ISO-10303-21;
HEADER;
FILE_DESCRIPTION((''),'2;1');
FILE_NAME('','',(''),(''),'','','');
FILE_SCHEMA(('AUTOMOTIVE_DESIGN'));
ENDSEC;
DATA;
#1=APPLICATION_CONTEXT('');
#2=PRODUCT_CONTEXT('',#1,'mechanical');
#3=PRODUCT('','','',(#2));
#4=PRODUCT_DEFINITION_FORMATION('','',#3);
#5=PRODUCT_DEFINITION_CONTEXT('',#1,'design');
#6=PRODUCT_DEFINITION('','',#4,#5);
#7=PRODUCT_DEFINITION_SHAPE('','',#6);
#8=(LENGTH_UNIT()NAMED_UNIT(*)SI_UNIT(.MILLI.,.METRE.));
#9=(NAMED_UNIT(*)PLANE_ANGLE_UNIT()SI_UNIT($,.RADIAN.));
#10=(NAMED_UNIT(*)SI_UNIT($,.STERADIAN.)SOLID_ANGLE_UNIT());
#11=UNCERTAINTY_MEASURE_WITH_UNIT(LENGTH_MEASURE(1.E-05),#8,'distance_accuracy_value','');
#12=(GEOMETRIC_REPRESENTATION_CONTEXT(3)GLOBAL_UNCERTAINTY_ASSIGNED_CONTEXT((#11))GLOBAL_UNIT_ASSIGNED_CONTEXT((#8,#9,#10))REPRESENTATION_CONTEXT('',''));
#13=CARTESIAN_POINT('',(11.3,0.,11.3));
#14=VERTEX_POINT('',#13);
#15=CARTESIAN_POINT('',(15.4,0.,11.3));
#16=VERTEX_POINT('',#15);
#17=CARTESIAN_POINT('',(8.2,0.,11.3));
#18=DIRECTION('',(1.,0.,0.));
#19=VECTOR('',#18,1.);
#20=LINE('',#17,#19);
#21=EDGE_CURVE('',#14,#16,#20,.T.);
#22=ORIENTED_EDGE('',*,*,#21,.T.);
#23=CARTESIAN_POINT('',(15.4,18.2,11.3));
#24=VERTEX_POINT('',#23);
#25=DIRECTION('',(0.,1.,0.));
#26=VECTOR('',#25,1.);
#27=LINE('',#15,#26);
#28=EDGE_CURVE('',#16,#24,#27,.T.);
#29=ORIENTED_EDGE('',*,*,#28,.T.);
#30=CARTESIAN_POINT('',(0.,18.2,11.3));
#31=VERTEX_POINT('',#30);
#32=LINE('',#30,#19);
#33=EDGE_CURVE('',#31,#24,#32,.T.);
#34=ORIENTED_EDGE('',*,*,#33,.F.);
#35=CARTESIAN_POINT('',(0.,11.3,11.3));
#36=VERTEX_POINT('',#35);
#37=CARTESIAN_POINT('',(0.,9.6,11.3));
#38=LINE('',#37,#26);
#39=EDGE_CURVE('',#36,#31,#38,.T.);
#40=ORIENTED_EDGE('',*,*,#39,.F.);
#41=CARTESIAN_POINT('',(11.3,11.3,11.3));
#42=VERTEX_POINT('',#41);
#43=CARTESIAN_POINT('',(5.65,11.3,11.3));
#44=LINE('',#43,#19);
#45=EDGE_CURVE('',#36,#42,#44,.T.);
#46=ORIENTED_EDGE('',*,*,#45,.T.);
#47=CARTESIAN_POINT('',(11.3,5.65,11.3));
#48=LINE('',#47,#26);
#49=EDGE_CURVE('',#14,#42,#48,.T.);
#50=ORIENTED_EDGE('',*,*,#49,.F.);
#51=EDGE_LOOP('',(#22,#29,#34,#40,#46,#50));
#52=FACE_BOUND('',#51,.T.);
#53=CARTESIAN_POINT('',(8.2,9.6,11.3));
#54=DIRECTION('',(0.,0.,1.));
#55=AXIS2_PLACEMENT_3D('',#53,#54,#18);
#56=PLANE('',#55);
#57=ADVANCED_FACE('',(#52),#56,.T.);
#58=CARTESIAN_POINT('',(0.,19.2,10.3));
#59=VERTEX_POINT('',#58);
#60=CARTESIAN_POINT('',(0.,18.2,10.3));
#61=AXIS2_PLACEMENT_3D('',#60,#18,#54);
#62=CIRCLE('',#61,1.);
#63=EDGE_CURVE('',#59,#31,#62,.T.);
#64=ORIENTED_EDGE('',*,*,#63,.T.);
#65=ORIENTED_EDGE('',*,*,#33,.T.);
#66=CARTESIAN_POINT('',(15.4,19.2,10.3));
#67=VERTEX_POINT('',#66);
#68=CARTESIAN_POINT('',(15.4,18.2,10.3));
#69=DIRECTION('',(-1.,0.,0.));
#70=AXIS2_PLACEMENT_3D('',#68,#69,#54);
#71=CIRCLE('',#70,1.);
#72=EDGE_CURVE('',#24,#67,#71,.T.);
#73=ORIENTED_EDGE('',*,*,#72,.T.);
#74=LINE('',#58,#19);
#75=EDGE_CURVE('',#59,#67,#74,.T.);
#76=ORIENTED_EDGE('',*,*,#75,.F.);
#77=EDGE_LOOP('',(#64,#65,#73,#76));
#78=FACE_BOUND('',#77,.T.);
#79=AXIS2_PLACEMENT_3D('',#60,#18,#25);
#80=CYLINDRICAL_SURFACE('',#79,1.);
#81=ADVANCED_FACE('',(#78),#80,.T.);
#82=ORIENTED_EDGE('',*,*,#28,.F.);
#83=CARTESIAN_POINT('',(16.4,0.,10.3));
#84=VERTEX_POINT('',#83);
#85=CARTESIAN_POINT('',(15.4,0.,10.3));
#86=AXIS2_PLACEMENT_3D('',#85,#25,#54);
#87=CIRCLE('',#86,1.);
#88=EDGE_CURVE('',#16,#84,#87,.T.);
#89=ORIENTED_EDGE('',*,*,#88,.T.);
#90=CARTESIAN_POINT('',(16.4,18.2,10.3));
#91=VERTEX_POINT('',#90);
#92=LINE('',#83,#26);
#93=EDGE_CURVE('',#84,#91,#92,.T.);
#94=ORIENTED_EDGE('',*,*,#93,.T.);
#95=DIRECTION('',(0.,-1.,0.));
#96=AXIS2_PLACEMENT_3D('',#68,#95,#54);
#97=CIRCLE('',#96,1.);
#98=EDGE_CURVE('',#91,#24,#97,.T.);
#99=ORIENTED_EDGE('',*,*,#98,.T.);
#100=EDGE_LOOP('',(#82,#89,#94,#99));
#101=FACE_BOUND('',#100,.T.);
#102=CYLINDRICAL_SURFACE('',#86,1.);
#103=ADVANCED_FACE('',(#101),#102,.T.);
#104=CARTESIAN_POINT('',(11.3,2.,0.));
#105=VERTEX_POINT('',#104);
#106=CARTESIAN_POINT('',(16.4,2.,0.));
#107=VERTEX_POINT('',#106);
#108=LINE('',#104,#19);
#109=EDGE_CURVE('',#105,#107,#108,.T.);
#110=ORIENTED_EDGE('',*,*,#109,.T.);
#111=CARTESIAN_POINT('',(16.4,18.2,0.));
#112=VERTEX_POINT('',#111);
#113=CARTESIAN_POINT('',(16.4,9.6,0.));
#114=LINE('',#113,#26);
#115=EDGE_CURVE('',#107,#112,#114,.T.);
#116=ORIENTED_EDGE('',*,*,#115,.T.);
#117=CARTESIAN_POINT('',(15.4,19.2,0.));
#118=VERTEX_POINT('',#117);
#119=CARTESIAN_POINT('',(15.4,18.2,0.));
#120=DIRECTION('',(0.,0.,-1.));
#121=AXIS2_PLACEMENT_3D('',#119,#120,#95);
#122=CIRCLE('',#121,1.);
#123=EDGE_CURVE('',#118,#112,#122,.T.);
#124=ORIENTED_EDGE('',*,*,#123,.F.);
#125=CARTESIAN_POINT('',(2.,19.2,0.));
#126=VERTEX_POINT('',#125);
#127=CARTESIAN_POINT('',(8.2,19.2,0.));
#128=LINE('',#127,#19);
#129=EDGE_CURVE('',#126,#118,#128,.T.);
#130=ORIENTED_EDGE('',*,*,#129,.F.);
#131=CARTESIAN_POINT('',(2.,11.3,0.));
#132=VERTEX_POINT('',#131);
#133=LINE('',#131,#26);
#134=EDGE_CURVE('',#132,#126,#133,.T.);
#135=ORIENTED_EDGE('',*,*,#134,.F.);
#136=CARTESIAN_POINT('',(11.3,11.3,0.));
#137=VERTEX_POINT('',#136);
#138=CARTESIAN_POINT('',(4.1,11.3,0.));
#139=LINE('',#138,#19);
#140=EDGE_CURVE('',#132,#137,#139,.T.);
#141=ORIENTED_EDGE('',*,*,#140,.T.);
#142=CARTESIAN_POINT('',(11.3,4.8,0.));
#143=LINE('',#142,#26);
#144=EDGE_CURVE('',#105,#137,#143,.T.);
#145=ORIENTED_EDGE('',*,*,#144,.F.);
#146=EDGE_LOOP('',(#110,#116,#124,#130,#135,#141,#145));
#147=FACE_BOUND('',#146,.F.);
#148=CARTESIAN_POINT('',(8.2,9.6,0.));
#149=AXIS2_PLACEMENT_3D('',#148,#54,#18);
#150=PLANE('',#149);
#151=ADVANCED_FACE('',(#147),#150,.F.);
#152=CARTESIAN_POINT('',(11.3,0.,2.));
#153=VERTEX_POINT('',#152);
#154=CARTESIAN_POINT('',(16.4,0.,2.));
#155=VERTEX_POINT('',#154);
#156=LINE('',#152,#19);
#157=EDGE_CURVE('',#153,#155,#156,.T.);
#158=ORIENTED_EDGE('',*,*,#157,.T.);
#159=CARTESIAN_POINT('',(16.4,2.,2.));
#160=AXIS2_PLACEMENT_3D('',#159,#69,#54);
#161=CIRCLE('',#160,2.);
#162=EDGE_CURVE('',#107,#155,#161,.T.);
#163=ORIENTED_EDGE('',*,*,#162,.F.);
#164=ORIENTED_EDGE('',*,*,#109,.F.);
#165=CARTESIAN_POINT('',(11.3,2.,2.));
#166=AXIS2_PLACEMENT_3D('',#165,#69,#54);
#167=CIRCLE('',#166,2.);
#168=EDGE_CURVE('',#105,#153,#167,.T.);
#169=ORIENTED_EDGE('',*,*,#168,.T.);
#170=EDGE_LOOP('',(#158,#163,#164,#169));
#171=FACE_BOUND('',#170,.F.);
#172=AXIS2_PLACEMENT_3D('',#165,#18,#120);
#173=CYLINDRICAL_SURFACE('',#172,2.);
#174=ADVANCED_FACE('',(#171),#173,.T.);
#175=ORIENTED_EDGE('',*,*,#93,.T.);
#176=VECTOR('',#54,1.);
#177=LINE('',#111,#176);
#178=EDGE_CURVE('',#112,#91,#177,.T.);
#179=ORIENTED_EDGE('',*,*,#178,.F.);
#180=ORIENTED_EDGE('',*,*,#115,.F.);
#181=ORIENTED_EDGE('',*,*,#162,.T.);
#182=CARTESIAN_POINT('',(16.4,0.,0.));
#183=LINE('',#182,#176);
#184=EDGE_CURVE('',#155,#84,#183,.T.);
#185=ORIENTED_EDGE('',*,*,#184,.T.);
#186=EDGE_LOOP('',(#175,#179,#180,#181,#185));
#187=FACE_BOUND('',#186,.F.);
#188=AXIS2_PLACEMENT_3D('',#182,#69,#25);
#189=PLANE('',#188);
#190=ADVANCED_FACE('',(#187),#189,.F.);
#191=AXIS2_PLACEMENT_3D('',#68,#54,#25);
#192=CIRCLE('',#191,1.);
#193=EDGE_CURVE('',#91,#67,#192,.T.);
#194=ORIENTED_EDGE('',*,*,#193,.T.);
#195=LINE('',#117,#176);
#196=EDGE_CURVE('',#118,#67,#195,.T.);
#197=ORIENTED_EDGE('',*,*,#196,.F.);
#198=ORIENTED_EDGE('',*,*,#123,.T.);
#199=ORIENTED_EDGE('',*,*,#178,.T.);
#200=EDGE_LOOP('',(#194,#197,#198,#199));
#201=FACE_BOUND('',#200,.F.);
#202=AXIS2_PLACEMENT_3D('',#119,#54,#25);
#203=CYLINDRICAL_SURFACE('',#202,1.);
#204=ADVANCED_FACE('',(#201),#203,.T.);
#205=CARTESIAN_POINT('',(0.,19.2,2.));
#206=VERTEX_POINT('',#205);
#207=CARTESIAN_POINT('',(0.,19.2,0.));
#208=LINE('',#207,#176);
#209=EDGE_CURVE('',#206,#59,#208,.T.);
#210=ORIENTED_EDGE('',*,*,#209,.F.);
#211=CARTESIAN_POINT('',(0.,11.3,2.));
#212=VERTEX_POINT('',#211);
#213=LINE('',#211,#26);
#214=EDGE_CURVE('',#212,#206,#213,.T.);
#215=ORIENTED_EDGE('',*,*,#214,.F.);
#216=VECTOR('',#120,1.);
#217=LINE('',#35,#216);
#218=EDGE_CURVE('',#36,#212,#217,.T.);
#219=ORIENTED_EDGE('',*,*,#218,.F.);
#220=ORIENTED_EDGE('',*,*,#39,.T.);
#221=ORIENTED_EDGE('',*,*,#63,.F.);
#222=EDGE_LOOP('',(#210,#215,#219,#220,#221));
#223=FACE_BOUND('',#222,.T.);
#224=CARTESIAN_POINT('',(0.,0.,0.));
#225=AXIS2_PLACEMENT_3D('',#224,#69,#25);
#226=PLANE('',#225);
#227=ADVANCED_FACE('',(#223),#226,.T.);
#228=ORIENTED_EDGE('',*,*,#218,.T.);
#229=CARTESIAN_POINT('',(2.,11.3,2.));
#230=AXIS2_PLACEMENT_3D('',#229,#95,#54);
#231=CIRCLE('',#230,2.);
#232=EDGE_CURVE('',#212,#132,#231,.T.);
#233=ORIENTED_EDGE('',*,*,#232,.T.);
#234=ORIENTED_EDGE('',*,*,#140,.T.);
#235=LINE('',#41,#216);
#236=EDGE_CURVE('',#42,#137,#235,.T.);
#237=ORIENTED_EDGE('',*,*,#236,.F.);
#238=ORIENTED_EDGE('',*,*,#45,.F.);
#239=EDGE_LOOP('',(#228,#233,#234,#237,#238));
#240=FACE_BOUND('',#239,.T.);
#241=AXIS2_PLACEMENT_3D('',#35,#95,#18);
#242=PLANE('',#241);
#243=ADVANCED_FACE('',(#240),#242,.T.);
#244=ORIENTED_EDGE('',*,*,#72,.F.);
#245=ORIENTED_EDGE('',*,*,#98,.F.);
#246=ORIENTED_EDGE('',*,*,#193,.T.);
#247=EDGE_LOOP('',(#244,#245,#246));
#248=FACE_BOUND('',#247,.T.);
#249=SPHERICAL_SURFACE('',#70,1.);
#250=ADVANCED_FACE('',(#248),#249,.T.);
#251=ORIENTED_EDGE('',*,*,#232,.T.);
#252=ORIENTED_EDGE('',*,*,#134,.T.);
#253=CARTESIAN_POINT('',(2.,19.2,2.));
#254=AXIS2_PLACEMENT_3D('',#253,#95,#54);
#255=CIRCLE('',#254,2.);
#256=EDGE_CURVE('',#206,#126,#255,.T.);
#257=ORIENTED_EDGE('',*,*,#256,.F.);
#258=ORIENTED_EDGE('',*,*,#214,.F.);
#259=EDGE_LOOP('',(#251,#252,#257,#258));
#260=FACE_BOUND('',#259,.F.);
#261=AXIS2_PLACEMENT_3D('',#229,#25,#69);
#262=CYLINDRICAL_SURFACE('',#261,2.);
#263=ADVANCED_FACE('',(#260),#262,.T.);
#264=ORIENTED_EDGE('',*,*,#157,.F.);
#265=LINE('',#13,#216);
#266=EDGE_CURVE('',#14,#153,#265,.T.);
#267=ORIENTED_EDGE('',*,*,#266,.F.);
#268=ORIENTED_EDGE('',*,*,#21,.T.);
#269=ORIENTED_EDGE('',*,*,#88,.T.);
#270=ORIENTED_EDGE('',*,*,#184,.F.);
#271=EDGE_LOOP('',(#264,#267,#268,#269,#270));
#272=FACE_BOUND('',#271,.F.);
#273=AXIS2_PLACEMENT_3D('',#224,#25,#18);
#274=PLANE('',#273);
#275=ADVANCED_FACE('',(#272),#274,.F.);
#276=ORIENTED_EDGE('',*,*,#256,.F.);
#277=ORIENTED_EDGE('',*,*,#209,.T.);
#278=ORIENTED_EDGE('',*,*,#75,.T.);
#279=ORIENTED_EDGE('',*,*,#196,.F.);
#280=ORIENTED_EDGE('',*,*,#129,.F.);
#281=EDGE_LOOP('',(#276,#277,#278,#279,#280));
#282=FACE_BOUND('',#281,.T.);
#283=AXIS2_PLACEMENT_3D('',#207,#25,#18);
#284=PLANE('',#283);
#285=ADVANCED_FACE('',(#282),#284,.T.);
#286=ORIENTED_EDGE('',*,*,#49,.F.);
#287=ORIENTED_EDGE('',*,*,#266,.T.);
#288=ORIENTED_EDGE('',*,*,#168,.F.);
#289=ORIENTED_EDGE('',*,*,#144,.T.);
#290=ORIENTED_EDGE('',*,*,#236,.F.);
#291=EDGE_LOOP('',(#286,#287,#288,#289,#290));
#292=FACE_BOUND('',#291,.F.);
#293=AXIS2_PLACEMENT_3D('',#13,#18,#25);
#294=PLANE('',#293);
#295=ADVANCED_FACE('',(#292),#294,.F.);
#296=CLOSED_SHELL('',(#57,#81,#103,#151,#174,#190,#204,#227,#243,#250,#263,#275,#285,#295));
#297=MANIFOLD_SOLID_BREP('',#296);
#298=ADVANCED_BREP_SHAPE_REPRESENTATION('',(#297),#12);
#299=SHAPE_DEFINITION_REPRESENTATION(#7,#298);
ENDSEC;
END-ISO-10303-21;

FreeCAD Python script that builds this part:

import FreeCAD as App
import Part
import Sketcher
from FreeCAD import Vector
Q = App.Units.Quantity


def edges_at(feature, points):
    """Names of the edges that pass closest to the given points."""
    edges = feature.Shape.Edges
    near = lambda p: min(range(len(edges)), key=lambda i: edges[i].distToShape(Part.Vertex(*p))[0])
    return sorted({f"Edge{near(p) + 1}" for p in points})

doc = App.newDocument("Part")
params = doc.addObject("Spreadsheet::Sheet", "Params")
for row, (alias, value) in enumerate([
    ("sketch1_width", "16.4 mm"),
    ("sketch1_height", "19.2 mm"),
    ("pad1_length", "11.3 mm"),
    ("sketch2_width", "11.3 mm"),
    ("pocket1_length", "25 mm"),
    ("fillet_radius", "2 mm"),
    ("fillet2_radius", "1 mm"),
], start=1):
    params.set(f"A{row}", alias)
    params.set(f"B{row}", "=" + value)
    params.setAlias(f"B{row}", alias)

body = doc.addObject("PartDesign::Body", "Body")

sketch1 = body.newObject("Sketcher::SketchObject", "Sketch")
sketch1.AttachmentSupport = (doc.getObject("XY_Plane"), [""])
sketch1.MapMode = "FlatFace"
sketch1.addGeometry(Part.LineSegment(Vector(0, 19, 0), Vector(0, 0, 0)), False)
sketch1.addGeometry(Part.LineSegment(Vector(0, 0, 0), Vector(16, 0, 0)), False)
sketch1.addGeometry(Part.LineSegment(Vector(16, 0, 0), Vector(16, 19, 0)), False)
sketch1.addGeometry(Part.LineSegment(Vector(16, 19, 0), Vector(0, 19, 0)), False)
sketch1.addConstraint(Sketcher.Constraint("Coincident", 0, 2, 1, 1))
sketch1.addConstraint(Sketcher.Constraint("Coincident", 1, 2, 2, 1))
sketch1.addConstraint(Sketcher.Constraint("Coincident", 2, 2, 3, 1))
sketch1.addConstraint(Sketcher.Constraint("Coincident", 3, 2, 0, 1))
sketch1.addConstraint(Sketcher.Constraint("Vertical", 0))
sketch1.addConstraint(Sketcher.Constraint("Horizontal", 1))
sketch1.addConstraint(Sketcher.Constraint("Vertical", 2))
sketch1.addConstraint(Sketcher.Constraint("Horizontal", 3))
sketch1.addConstraint(Sketcher.Constraint("Coincident", 0, 2, -1, 1))
sketch1.addConstraint(Sketcher.Constraint("DistanceX", 1, 1, 1, 2, Q("16.4 mm")))
sketch1.addConstraint(Sketcher.Constraint("DistanceY", 0, 2, 0, 1, Q("19.2 mm")))
sketch1.setExpression("Constraints[9]", "Params.sketch1_width")
sketch1.setExpression("Constraints[10]", "Params.sketch1_height")
pad1 = body.newObject("PartDesign::Pad", "Pad")
pad1.Profile = sketch1
pad1.setExpression("Length", "Params.pad1_length")

sketch2 = body.newObject("Sketcher::SketchObject", "Sketch001")
sketch2.AttachmentSupport = (doc.getObject("XY_Plane"), [""])
sketch2.MapMode = "FlatFace"
sketch2.AttachmentOffset = App.Placement(Vector(0, 0, 11.3), App.Rotation())
sketch2.addGeometry(Part.LineSegment(Vector(0, 11, 0), Vector(0, 0, 0)), False)
sketch2.addGeometry(Part.LineSegment(Vector(0, 0, 0), Vector(11, 0, 0)), False)
sketch2.addGeometry(Part.LineSegment(Vector(11, 0, 0), Vector(11, 11, 0)), False)
sketch2.addGeometry(Part.LineSegment(Vector(11, 11, 0), Vector(0, 11, 0)), False)
sketch2.addConstraint(Sketcher.Constraint("Coincident", 0, 2, 1, 1))
sketch2.addConstraint(Sketcher.Constraint("Coincident", 1, 2, 2, 1))
sketch2.addConstraint(Sketcher.Constraint("Coincident", 2, 2, 3, 1))
sketch2.addConstraint(Sketcher.Constraint("Coincident", 3, 2, 0, 1))
sketch2.addConstraint(Sketcher.Constraint("Vertical", 0))
sketch2.addConstraint(Sketcher.Constraint("Horizontal", 1))
sketch2.addConstraint(Sketcher.Constraint("Vertical", 2))
sketch2.addConstraint(Sketcher.Constraint("Horizontal", 3))
sketch2.addConstraint(Sketcher.Constraint("Coincident", 0, 2, -1, 1))
sketch2.addConstraint(Sketcher.Constraint("Equal", 3, 0))
sketch2.addConstraint(Sketcher.Constraint("DistanceX", 1, 1, 1, 2, Q("11.3 mm")))
sketch2.setExpression("Constraints[10]", "Params.sketch2_width")
pocket1 = body.newObject("PartDesign::Pocket", "Pocket")
pocket1.Profile = sketch2
pocket1.setExpression("Length", "Params.pocket1_length")
doc.recompute()

fillet = body.newObject("PartDesign::Fillet", "Fillet")
fillet.Base = (pocket1, edges_at(pocket1, [(13.85, 0, 0), (0, 15.25, 0)]))
fillet.setExpression("Radius", "Params.fillet_radius")
doc.recompute()

fillet2 = body.newObject("PartDesign::Fillet", "Fillet001")
fillet2.Base = (fillet, edges_at(fillet, [(8.2, 19.2, 11.3), (16.4, 9.6, 11.3), (16.4, 19.2, 5.65)]))
fillet2.setExpression("Radius", "Params.fillet2_radius")

doc.recompute()
